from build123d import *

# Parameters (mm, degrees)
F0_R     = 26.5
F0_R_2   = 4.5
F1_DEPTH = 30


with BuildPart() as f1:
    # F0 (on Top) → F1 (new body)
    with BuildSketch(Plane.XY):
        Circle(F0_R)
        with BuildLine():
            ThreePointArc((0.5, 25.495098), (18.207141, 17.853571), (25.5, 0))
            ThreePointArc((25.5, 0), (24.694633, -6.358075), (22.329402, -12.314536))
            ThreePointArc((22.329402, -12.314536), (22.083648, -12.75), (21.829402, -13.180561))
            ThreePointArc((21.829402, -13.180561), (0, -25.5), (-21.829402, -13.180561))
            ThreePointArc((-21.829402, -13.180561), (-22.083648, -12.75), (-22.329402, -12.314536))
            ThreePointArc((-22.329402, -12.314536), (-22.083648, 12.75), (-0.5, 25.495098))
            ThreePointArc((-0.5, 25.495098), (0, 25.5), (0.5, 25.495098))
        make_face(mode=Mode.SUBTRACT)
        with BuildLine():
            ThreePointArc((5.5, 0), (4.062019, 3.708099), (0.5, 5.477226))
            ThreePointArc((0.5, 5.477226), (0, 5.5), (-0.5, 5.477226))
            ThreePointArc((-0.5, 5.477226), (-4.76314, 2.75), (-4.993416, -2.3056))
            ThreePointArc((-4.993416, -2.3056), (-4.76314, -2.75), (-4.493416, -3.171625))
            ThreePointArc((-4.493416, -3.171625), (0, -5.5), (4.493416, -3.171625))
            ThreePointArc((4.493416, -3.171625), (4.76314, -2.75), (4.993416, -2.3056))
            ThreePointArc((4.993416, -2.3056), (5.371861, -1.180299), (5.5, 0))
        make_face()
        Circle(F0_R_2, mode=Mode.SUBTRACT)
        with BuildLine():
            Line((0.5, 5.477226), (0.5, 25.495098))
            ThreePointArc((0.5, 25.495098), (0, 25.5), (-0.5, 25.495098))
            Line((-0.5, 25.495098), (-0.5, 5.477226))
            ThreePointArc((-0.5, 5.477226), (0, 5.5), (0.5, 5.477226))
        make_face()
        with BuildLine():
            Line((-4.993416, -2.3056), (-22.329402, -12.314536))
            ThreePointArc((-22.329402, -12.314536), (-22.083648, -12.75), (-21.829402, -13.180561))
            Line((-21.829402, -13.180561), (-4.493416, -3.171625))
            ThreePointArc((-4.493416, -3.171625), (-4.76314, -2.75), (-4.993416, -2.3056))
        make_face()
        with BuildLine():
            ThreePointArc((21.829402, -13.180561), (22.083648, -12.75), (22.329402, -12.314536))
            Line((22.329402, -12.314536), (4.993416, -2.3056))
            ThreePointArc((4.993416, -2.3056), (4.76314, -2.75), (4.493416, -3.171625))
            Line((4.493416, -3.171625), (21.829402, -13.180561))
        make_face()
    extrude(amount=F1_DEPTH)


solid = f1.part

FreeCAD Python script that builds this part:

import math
import FreeCAD as App
import Part
import Sketcher
from FreeCAD import Vector
Q = App.Units.Quantity

doc = App.newDocument("Part")
body = doc.addObject("PartDesign::Body", "Body")

# Sketch on XY plane
sketch1 = doc.addObject("Sketcher::SketchObject", "Sketch")
body.addObject(sketch1)
sketch1.AttachmentSupport = (doc.XY_Plane, [""])
sketch1.MapMode = "FlatFace"
sketch1.addGeometry([
    Part.Circle(Vector(0, 0, 0), Vector(0, 0, 1), 26.5),  # 0
    Part.ArcOfCircle(Part.Circle(Vector(0, 0, 0), Vector(0, 0, 1), 25.5), math.radians(91.123519), math.radians(208.876482)),  # 1
    Part.LineSegment(Vector(-0.5, 25.495098, 0), Vector(-0.5, 5.477226, 0)),  # 2
    Part.ArcOfCircle(Part.Circle(Vector(0, 0.000001, 0), Vector(0, 0, 1), 5.5), math.radians(95.215906), math.radians(204.784102)),  # 3
    Part.LineSegment(Vector(-4.993416, -2.3056, 0), Vector(-22.329402, -12.314536, 0)),  # 4
    Part.ArcOfCircle(Part.Circle(Vector(0, -0.000002, 0), Vector(0, 0, 1), 5.499998), math.radians(-144.784106), math.radians(-35.215894)),  # 5
    Part.LineSegment(Vector(4.493416, -3.171625, 0), Vector(21.829402, -13.180561, 0)),  # 6
    Part.ArcOfCircle(Part.Circle(Vector(0, -0.000001, 0), Vector(0, 0, 1), 25.499999), math.radians(-148.876484), math.radians(-31.123516)),  # 7
    Part.LineSegment(Vector(-21.829402, -13.180561, 0), Vector(-4.493416, -3.171625, 0)),  # 8
    Part.ArcOfCircle(Part.Circle(Vector(-0.000004, 0.000002, 0), Vector(0, 0, 1), 5.500004), math.radians(-24.784095), math.radians(-0.00002)),  # 9
    Part.ArcOfCircle(Part.Circle(Vector(-0.000002, -0.000001, 0), Vector(0, 0, 1), 5.500002), math.radians(0.000012), math.radians(84.784075)),  # 10
    Part.LineSegment(Vector(0.5, 5.477226, 0), Vector(0.5, 25.495098, 0)),  # 11
    Part.ArcOfCircle(Part.Circle(Vector(-0.000002, -0.000001, 0), Vector(0, 0, 1), 25.500002), math.radians(0.000003), math.radians(88.876478)),  # 12
    Part.ArcOfCircle(Part.Circle(Vector(0.000013, -0.000003, 0), Vector(0, 0, 1), 25.499987), math.radians(-28.87649), math.radians(0.000007)),  # 13
    Part.LineSegment(Vector(22.329402, -12.314536, 0), Vector(4.993416, -2.3056, 0)),  # 14
    Part.Circle(Vector(0, 0, 0), Vector(0, 0, 1), 4.5),  # 15
], False)
sketch1.addConstraint([
    Sketcher.Constraint("Coincident", 1, 1, 2, 1),
    Sketcher.Constraint("Coincident", 2, 2, 3, 1),
    Sketcher.Constraint("Coincident", 3, 2, 4, 1),
    Sketcher.Constraint("Coincident", 4, 2, 1, 2),
    Sketcher.Constraint("Coincident", 5, 2, 6, 1),
    Sketcher.Constraint("Coincident", 6, 2, 7, 2),
    Sketcher.Constraint("Coincident", 7, 1, 8, 1),
    Sketcher.Constraint("Coincident", 8, 2, 5, 1),
    Sketcher.Constraint("Tangent", 9, 2, 10, 1),
    Sketcher.Constraint("Coincident", 10, 2, 11, 1),
    Sketcher.Constraint("Coincident", 11, 2, 12, 2),
    Sketcher.Constraint("Tangent", 12, 1, 13, 2),
    Sketcher.Constraint("Coincident", 13, 1, 14, 1),
    Sketcher.Constraint("Coincident", 14, 2, 9, 1),
    Sketcher.Constraint("Vertical", 2),
    Sketcher.Constraint("Vertical", 11),
    Sketcher.Constraint("Coincident", 0, 3, -1, 1),
    Sketcher.Constraint("Coincident", 1, 3, -1, 1),
    Sketcher.Constraint("Coincident", 3, 3, -1, 1),
    Sketcher.Constraint("Coincident", 5, 3, -1, 1),
    Sketcher.Constraint("Coincident", 7, 3, -1, 1),
    Sketcher.Constraint("Coincident", 9, 3, -1, 1),
    Sketcher.Constraint("Coincident", 12, 3, -1, 1),
    Sketcher.Constraint("Coincident", 15, 3, -1, 1),
    Sketcher.Constraint("Equal", 3, 5),
    Sketcher.Constraint("Equal", 1, 7),
    Sketcher.Constraint("Equal", 9, 10),
    Sketcher.Constraint("Equal", 1, 12),
    Sketcher.Constraint("Symmetric", 2, 2, 10, 2, -2),
    Sketcher.Constraint("Symmetric", 4, 2, 13, 1, -2),
    Sketcher.Constraint("PointOnObject", 9, 2, -1),
    Sketcher.Constraint("PointOnObject", 12, 1, -1),
    Sketcher.Constraint("Parallel", 4, 8),
    Sketcher.Constraint("Parallel", 6, 14),
    Sketcher.Constraint("Horizontal", 6, 2, 7, 1),
    Sketcher.Constraint("Horizontal", 5, 2, 8, 2),
    Sketcher.Constraint("Equal", 4, 6),
    Sketcher.Constraint("Diameter", 0, Q("53 mm")),
    Sketcher.Constraint("Diameter", 15, Q("9 mm")),
    Sketcher.Constraint("Radius", 1, Q("25.5 mm")),
    Sketcher.Constraint("Radius", 3, Q("5.5 mm")),
    Sketcher.Constraint("Angle", 4, Q("-150 deg")),
    Sketcher.Constraint("DistanceX", 2, 2, 10, 2, Q("1 mm")),
    Sketcher.Constraint("DistanceX", 4, 2, 7, 1, Q("0.5 mm")),
])
pad1 = doc.addObject("PartDesign::Pad", "Pad")
body.addObject(pad1)
pad1.Profile = sketch1
pad1.Length = 30

doc.recompute()
